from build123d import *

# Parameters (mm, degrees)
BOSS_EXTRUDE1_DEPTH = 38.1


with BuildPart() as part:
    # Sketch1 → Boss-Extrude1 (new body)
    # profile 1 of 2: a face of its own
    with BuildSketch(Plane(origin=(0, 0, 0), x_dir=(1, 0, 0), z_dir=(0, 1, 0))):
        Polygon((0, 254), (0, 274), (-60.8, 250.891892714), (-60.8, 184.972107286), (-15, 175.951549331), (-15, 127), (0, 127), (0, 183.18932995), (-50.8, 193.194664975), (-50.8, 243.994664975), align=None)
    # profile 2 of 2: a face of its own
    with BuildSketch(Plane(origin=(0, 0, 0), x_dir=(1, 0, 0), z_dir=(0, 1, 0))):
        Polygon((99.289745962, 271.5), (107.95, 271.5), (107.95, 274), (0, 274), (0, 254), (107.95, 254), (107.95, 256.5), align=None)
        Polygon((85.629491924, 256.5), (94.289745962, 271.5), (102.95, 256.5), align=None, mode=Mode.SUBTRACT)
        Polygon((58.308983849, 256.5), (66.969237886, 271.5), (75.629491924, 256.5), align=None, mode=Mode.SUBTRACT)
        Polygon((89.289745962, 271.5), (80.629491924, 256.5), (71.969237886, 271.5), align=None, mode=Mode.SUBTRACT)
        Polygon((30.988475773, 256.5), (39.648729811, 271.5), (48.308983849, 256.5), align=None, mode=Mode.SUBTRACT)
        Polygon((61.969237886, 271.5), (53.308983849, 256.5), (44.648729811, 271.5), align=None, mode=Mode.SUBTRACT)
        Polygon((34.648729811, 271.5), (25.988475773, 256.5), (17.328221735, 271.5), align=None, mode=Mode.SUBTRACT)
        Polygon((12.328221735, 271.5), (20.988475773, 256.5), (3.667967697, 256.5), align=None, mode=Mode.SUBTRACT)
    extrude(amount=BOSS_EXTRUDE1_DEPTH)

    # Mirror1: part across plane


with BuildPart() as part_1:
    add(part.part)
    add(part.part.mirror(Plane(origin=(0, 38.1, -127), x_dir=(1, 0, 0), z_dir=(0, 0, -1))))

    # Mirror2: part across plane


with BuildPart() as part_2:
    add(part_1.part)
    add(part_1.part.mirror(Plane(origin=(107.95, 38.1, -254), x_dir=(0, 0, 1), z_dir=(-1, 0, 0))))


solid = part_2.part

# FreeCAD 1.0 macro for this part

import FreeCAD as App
import Part
import Sketcher
Q = App.Units.Quantity

doc = App.newDocument("Part")
body = doc.addObject("PartDesign::Body", "Body")

# Sketch on XZ plane
sketch1 = body.newObject("Sketcher::SketchObject", "Sketch")
sketch1.AttachmentSupport = (doc.getObject("XZ_Plane"), [""])
sketch1.MapMode = "FlatFace"
sketch1.addGeometry(Part.LineSegment(App.Vector(0, -274, 0), App.Vector(-60.8, -250.9, 0)), False)
sketch1.addGeometry(Part.LineSegment(App.Vector(-60.8, -250.9, 0), App.Vector(-60.8, -185, 0)), False)
sketch1.addGeometry(Part.LineSegment(App.Vector(-60.8, -185, 0), App.Vector(-15, -176, 0)), False)
sketch1.addGeometry(Part.LineSegment(App.Vector(-15, -176, 0), App.Vector(-15, -127, 0)), False)
sketch1.addGeometry(Part.LineSegment(App.Vector(-15, -127, 0), App.Vector(0, -127, 0)), False)
sketch1.addGeometry(Part.LineSegment(App.Vector(0, -127, 0), App.Vector(0, -183.2, 0)), False)
sketch1.addGeometry(Part.LineSegment(App.Vector(0, -183.2, 0), App.Vector(-50.8, -193.2, 0)), False)
sketch1.addGeometry(Part.LineSegment(App.Vector(-50.8, -193.2, 0), App.Vector(-50.8, -244, 0)), False)
sketch1.addGeometry(Part.LineSegment(App.Vector(-50.8, -244, 0), App.Vector(0, -254, 0)), False)
sketch1.addGeometry(Part.LineSegment(App.Vector(0, -254, 0), App.Vector(108, -254, 0)), False)
sketch1.addGeometry(Part.LineSegment(App.Vector(108, -254, 0), App.Vector(108, -256.5, 0)), False)
sketch1.addGeometry(Part.LineSegment(App.Vector(108, -256.5, 0), App.Vector(99.3, -271.5, 0)), False)
sketch1.addGeometry(Part.LineSegment(App.Vector(99.3, -271.5, 0), App.Vector(108, -271.5, 0)), False)
sketch1.addGeometry(Part.LineSegment(App.Vector(108, -271.5, 0), App.Vector(108, -274, 0)), False)
sketch1.addGeometry(Part.LineSegment(App.Vector(108, -274, 0), App.Vector(0, -274, 0)), False)
sketch1.addGeometry(Part.LineSegment(App.Vector(85.6, -256.5, 0), App.Vector(94.3, -271.5, 0)), False)
sketch1.addGeometry(Part.LineSegment(App.Vector(94.3, -271.5, 0), App.Vector(103, -256.5, 0)), False)
sketch1.addGeometry(Part.LineSegment(App.Vector(103, -256.5, 0), App.Vector(85.6, -256.5, 0)), False)
sketch1.addGeometry(Part.LineSegment(App.Vector(3.7, -256.5, 0), App.Vector(12.3, -271.5, 0)), False)
sketch1.addGeometry(Part.LineSegment(App.Vector(12.3, -271.5, 0), App.Vector(21, -256.5, 0)), False)
sketch1.addGeometry(Part.LineSegment(App.Vector(21, -256.5, 0), App.Vector(3.7, -256.5, 0)), False)
sketch1.addGeometry(Part.LineSegment(App.Vector(72, -271.5, 0), App.Vector(89.3, -271.5, 0)), False)
sketch1.addGeometry(Part.LineSegment(App.Vector(89.3, -271.5, 0), App.Vector(80.6, -256.5, 0)), False)
sketch1.addGeometry(Part.LineSegment(App.Vector(80.6, -256.5, 0), App.Vector(72, -271.5, 0)), False)
sketch1.addGeometry(Part.LineSegment(App.Vector(17.3, -271.5, 0), App.Vector(34.6, -271.5, 0)), False)
sketch1.addGeometry(Part.LineSegment(App.Vector(34.6, -271.5, 0), App.Vector(26, -256.5, 0)), False)
sketch1.addGeometry(Part.LineSegment(App.Vector(26, -256.5, 0), App.Vector(17.3, -271.5, 0)), False)
sketch1.addGeometry(Part.LineSegment(App.Vector(48.3, -256.5, 0), App.Vector(31, -256.5, 0)), False)
sketch1.addGeometry(Part.LineSegment(App.Vector(31, -256.5, 0), App.Vector(39.6, -271.5, 0)), False)
sketch1.addGeometry(Part.LineSegment(App.Vector(39.6, -271.5, 0), App.Vector(48.3, -256.5, 0)), False)
sketch1.addGeometry(Part.LineSegment(App.Vector(44.6, -271.5, 0), App.Vector(62, -271.5, 0)), False)
sketch1.addGeometry(Part.LineSegment(App.Vector(62, -271.5, 0), App.Vector(53.3, -256.5, 0)), False)
sketch1.addGeometry(Part.LineSegment(App.Vector(53.3, -256.5, 0), App.Vector(44.6, -271.5, 0)), False)
sketch1.addGeometry(Part.LineSegment(App.Vector(75.6, -256.5, 0), App.Vector(58.3, -256.5, 0)), False)
sketch1.addGeometry(Part.LineSegment(App.Vector(58.3, -256.5, 0), App.Vector(67, -271.5, 0)), False)
sketch1.addGeometry(Part.LineSegment(App.Vector(67, -271.5, 0), App.Vector(75.6, -256.5, 0)), False)
sketch1.addConstraint(Sketcher.Constraint("Coincident", 0, 2, 1, 1))
sketch1.addConstraint(Sketcher.Constraint("Coincident", 1, 2, 2, 1))
sketch1.addConstraint(Sketcher.Constraint("Coincident", 2, 2, 3, 1))
sketch1.addConstraint(Sketcher.Constraint("Coincident", 3, 2, 4, 1))
sketch1.addConstraint(Sketcher.Constraint("Coincident", 4, 2, 5, 1))
sketch1.addConstraint(Sketcher.Constraint("Coincident", 5, 2, 6, 1))
sketch1.addConstraint(Sketcher.Constraint("Coincident", 6, 2, 7, 1))
sketch1.addConstraint(Sketcher.Constraint("Coincident", 7, 2, 8, 1))
sketch1.addConstraint(Sketcher.Constraint("Coincident", 8, 2, 9, 1))
sketch1.addConstraint(Sketcher.Constraint("Coincident", 9, 2, 10, 1))
sketch1.addConstraint(Sketcher.Constraint("Coincident", 10, 2, 11, 1))
sketch1.addConstraint(Sketcher.Constraint("Coincident", 11, 2, 12, 1))
sketch1.addConstraint(Sketcher.Constraint("Coincident", 12, 2, 13, 1))
sketch1.addConstraint(Sketcher.Constraint("Coincident", 13, 2, 14, 1))
sketch1.addConstraint(Sketcher.Constraint("Coincident", 14, 2, 0, 1))
sketch1.addConstraint(Sketcher.Constraint("Coincident", 15, 2, 16, 1))
sketch1.addConstraint(Sketcher.Constraint("Coincident", 16, 2, 17, 1))
sketch1.addConstraint(Sketcher.Constraint("Coincident", 17, 2, 15, 1))
sketch1.addConstraint(Sketcher.Constraint("Coincident", 18, 2, 19, 1))
sketch1.addConstraint(Sketcher.Constraint("Coincident", 19, 2, 20, 1))
sketch1.addConstraint(Sketcher.Constraint("Coincident", 20, 2, 18, 1))
sketch1.addConstraint(Sketcher.Constraint("Coincident", 21, 2, 22, 1))
sketch1.addConstraint(Sketcher.Constraint("Coincident", 22, 2, 23, 1))
sketch1.addConstraint(Sketcher.Constraint("Coincident", 23, 2, 21, 1))
sketch1.addConstraint(Sketcher.Constraint("Coincident", 24, 2, 25, 1))
sketch1.addConstraint(Sketcher.Constraint("Coincident", 25, 2, 26, 1))
sketch1.addConstraint(Sketcher.Constraint("Coincident", 26, 2, 24, 1))
sketch1.addConstraint(Sketcher.Constraint("Coincident", 27, 2, 28, 1))
sketch1.addConstraint(Sketcher.Constraint("Coincident", 28, 2, 29, 1))
sketch1.addConstraint(Sketcher.Constraint("Coincident", 29, 2, 27, 1))
sketch1.addConstraint(Sketcher.Constraint("Coincident", 30, 2, 31, 1))
sketch1.addConstraint(Sketcher.Constraint("Coincident", 31, 2, 32, 1))
sketch1.addConstraint(Sketcher.Constraint("Coincident", 32, 2, 30, 1))
sketch1.addConstraint(Sketcher.Constraint("Coincident", 33, 2, 34, 1))
sketch1.addConstraint(Sketcher.Constraint("Coincident", 34, 2, 35, 1))
sketch1.addConstraint(Sketcher.Constraint("Coincident", 35, 2, 33, 1))
sketch1.addConstraint(Sketcher.Constraint("Vertical", 1))
sketch1.addConstraint(Sketcher.Constraint("Vertical", 3))
sketch1.addConstraint(Sketcher.Constraint("Horizontal", 4))
sketch1.addConstraint(Sketcher.Constraint("Vertical", 5))
sketch1.addConstraint(Sketcher.Constraint("Vertical", 7))
sketch1.addConstraint(Sketcher.Constraint("Horizontal", 9))
sketch1.addConstraint(Sketcher.Constraint("Vertical", 10))
sketch1.addConstraint(Sketcher.Constraint("Horizontal", 12))
sketch1.addConstraint(Sketcher.Constraint("Vertical", 13))
sketch1.addConstraint(Sketcher.Constraint("Horizontal", 14))
sketch1.addConstraint(Sketcher.Constraint("Horizontal", 17))
sketch1.addConstraint(Sketcher.Constraint("Horizontal", 20))
sketch1.addConstraint(Sketcher.Constraint("Horizontal", 21))
sketch1.addConstraint(Sketcher.Constraint("Horizontal", 24))
sketch1.addConstraint(Sketcher.Constraint("Horizontal", 27))
sketch1.addConstraint(Sketcher.Constraint("Horizontal", 30))
sketch1.addConstraint(Sketcher.Constraint("Horizontal", 33))
sketch1.addConstraint(Sketcher.Constraint("PointOnObject", 4, 2, -2))
sketch1.addConstraint(Sketcher.Constraint("PointOnObject", 8, 2, -2))
sketch1.addConstraint(Sketcher.Constraint("PointOnObject", 14, 2, -2))
sketch1.addConstraint(Sketcher.Constraint("Parallel", 2, 6))
sketch1.addConstraint(Sketcher.Constraint("Parallel", 11, 16))
sketch1.addConstraint(Sketcher.Constraint("Parallel", 15, 18))
sketch1.addConstraint(Sketcher.Constraint("Parallel", 16, 19))
sketch1.addConstraint(Sketcher.Constraint("Parallel", 18, 22))
sketch1.addConstraint(Sketcher.Constraint("Parallel", 19, 23))
sketch1.addConstraint(Sketcher.Constraint("Parallel", 22, 25))
sketch1.addConstraint(Sketcher.Constraint("Parallel", 23, 26))
sketch1.addConstraint(Sketcher.Constraint("Parallel", 25, 28))
sketch1.addConstraint(Sketcher.Constraint("Parallel", 26, 29))
sketch1.addConstraint(Sketcher.Constraint("Parallel", 28, 31))
sketch1.addConstraint(Sketcher.Constraint("Parallel", 29, 32))
sketch1.addConstraint(Sketcher.Constraint("Parallel", 31, 34))
sketch1.addConstraint(Sketcher.Constraint("Parallel", 32, 35))
sketch1.addConstraint(Sketcher.Constraint("Horizontal", 12, 2, 15, 2))
sketch1.addConstraint(Sketcher.Constraint("Horizontal", 10, 2, 16, 2))
sketch1.addConstraint(Sketcher.Constraint("Horizontal", 15, 2, 18, 2))
sketch1.addConstraint(Sketcher.Constraint("Horizontal", 17, 2, 19, 2))
sketch1.addConstraint(Sketcher.Constraint("Horizontal", 18, 2, 21, 2))
sketch1.addConstraint(Sketcher.Constraint("Horizontal", 20, 2, 22, 2))
sketch1.addConstraint(Sketcher.Constraint("Horizontal", 23, 2, 24, 2))
sketch1.addConstraint(Sketcher.Constraint("Horizontal", 22, 2, 25, 2))
sketch1.addConstraint(Sketcher.Constraint("Horizontal", 25, 2, 27, 2))
sketch1.addConstraint(Sketcher.Constraint("Horizontal", 26, 2, 28, 2))
sketch1.addConstraint(Sketcher.Constraint("Horizontal", 28, 2, 30, 2))
sketch1.addConstraint(Sketcher.Constraint("Horizontal", 29, 2, 31, 2))
sketch1.addConstraint(Sketcher.Constraint("Horizontal", 31, 2, 33, 2))
sketch1.addConstraint(Sketcher.Constraint("Horizontal", 32, 2, 34, 2))
sketch1.addConstraint(Sketcher.Constraint("Vertical", 10, 2, 12, 2))
sketch1.addConstraint(Sketcher.Constraint("Equal", 10, 13))
sketch1.addConstraint(Sketcher.Constraint("Equal", 6, 8))
sketch1.addConstraint(Sketcher.Constraint("Equal", 11, 15))
sketch1.addConstraint(Sketcher.Constraint("DistanceY", 7, 2, 7, 1, Q("2 in")))
sketch1.addConstraint(Sketcher.Constraint("DistanceY", 3, 2, -1, 1, Q("5 in")))
sketch1.addConstraint(Sketcher.Constraint("DistanceX", 6, 2, -1, 1, Q("2 in")))
sketch1.addConstraint(Sketcher.Constraint("DistanceY", 8, 2, -1, 1, Q("10 in")))
sketch1.addConstraint(Sketcher.Constraint("Angle", 11, Q("-120 deg")))
sketch1.addConstraint(Sketcher.Constraint("DistanceX", 9, 1, 9, 2, Q("4.25 in")))
sketch1.addConstraint(Sketcher.Constraint("DistanceX", 4, 1, 4, 2, 15.0))
sketch1.addConstraint(Sketcher.Constraint("DistanceY", 10, 2, 10, 1, 2.5))
sketch1.addConstraint(Sketcher.Constraint("DistanceX", 17, 2, 17, 1, 17.320508))
sketch1.addConstraint(Sketcher.Constraint("DistanceY", 3, 1, 3, 2, 48.951549))
sketch1.addConstraint(Sketcher.Constraint("DistanceY", 5, 2, 5, 1, 56.18933))
sketch1.addConstraint(Sketcher.Constraint("DistanceX", 0, 2, -1, 1, 60.8))
sketch1.addConstraint(Sketcher.Constraint("DistanceX", -1, 1, 16, 2, 102.95))
sketch1.addConstraint(Sketcher.Constraint("DistanceX", 21, 2, 15, 2, 5.0))
sketch1.addConstraint(Sketcher.Constraint("DistanceX", 19, 2, 25, 2, 5.0))
sketch1.addConstraint(Sketcher.Constraint("DistanceX", 25, 2, 27, 2, 5.0))
sketch1.addConstraint(Sketcher.Constraint("DistanceX", 30, 2, 23, 2, 10.0))
sketch1.addConstraint(Sketcher.Constraint("DistanceX", 29, 2, 31, 2, 5.0))
sketch1.addConstraint(Sketcher.Constraint("DistanceX", 31, 2, 33, 2, 5.0))
sketch1.addConstraint(Sketcher.Constraint("Distance", 0, 65.043252))
pad1 = body.newObject("PartDesign::Pad", "Pad")
pad1.Profile = sketch1
pad1.Length = Q("1.5 in")
pad1.Reversed = True
body2 = doc.addObject("PartDesign::Body", "Body001")
doc.recompute()

body2.BaseFeature = body
doc.recompute()

mirroring = doc.addObject("Part::Mirroring", "Mirroring")
mirroring.Source = body
mirroring.Base = App.Vector(0, 38.1, -127)
mirroring.Normal = App.Vector(0, 0, -1)
body3 = doc.addObject("PartDesign::Body", "Body002")
body3.BaseFeature = mirroring
boolean = body2.newObject("PartDesign::Boolean", "Boolean")
boolean.Type = "Fuse"
boolean.addObjects([body3])
doc.recompute()
body4 = doc.addObject("PartDesign::Body", "Body003")
doc.recompute()

body4.BaseFeature = body2
doc.recompute()

mirroring2 = doc.addObject("Part::Mirroring", "Mirroring001")
mirroring2.Source = body2
mirroring2.Base = App.Vector(107.95, 38.1, -254)
mirroring2.Normal = App.Vector(-1, 0, 0)
body5 = doc.addObject("PartDesign::Body", "Body004")
body5.BaseFeature = mirroring2
boolean2 = body4.newObject("PartDesign::Boolean", "Boolean001")
boolean2.Type = "Fuse"
boolean2.addObjects([body5])
doc.recompute()
mirroring.Visibility = False
mirroring2.Visibility = False

doc.recompute()
